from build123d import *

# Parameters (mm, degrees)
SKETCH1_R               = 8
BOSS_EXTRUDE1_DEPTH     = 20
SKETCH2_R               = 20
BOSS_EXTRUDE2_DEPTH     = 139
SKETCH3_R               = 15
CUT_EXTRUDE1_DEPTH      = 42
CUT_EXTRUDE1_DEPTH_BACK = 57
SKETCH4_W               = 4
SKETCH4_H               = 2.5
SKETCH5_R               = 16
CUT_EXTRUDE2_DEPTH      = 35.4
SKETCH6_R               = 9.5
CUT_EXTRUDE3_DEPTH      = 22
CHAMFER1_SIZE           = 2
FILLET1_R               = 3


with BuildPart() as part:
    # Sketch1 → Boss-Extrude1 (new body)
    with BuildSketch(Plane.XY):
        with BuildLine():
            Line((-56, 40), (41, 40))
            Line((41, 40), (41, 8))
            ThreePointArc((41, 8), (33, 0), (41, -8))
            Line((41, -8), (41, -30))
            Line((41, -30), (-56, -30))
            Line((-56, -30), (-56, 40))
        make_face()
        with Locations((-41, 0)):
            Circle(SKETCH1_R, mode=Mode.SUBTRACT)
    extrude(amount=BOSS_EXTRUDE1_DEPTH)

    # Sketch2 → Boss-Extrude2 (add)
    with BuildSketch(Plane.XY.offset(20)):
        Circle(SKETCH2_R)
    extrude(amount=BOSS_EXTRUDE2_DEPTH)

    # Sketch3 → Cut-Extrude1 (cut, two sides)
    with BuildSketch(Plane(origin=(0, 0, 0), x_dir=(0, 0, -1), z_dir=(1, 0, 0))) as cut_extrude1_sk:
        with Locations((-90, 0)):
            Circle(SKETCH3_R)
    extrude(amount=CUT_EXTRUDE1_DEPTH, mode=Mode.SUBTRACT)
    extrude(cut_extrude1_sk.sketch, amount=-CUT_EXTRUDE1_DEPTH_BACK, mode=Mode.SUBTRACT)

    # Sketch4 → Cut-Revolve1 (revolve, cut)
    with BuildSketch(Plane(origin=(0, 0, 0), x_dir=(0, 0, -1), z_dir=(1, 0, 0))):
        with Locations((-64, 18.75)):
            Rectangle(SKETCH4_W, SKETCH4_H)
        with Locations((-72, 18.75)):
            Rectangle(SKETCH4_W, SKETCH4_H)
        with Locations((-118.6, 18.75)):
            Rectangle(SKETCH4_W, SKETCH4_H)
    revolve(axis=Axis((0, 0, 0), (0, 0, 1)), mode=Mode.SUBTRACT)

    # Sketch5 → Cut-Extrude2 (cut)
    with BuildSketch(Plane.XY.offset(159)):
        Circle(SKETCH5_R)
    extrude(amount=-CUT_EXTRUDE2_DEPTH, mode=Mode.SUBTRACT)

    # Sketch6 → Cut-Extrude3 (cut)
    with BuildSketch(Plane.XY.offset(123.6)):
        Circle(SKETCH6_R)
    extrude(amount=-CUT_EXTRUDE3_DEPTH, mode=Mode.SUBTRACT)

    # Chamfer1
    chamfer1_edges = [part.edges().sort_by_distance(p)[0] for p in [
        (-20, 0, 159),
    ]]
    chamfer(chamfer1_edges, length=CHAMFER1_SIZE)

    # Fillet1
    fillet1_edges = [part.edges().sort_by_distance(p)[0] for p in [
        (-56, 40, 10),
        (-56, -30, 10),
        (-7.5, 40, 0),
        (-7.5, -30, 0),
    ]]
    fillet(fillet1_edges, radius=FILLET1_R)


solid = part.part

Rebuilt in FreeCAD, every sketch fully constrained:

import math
import FreeCAD as App
import Part
import Sketcher

V = App.Vector
Q = App.Units.Quantity


def edges_at(feature, points):
    """Names of the edges that pass closest to the given points."""
    edges = feature.Shape.Edges
    near = lambda p: min(range(len(edges)), key=lambda i: edges[i].distToShape(Part.Vertex(*p))[0])
    return sorted({f"Edge{near(p) + 1}" for p in points})


def add_polygon(sketch, points):
    """Adds a closed chain of lines whose ends are joined by coincident constraints."""
    first, n = sketch.GeometryCount, len(points)
    for a, b in zip(points, points[1:] + points[:1]):
        sketch.addGeometry(Part.LineSegment(App.Vector(*a, 0), App.Vector(*b, 0)), False)
    for i in range(n):
        sketch.addConstraint(Sketcher.Constraint("Coincident", first + i, 2, first + (i + 1) % n, 1))

doc = App.newDocument("Part")
body = doc.addObject("PartDesign::Body", "Body")

sketch1 = body.newObject("Sketcher::SketchObject", "Sketch")
sketch1.AttachmentSupport = (doc.getObject("XY_Plane"), [""])
sketch1.MapMode = "FlatFace"
sketch1.addGeometry([
    Part.LineSegment(V(41, 40, 0), V(-56, 40, 0)),
    Part.LineSegment(V(-56, 40, 0), V(-56, -30, 0)),
    Part.LineSegment(V(-56, -30, 0), V(41, -30, 0)),
    Part.LineSegment(V(41, -30, 0), V(41, -8, 0)),
    Part.ArcOfCircle(Part.Circle(V(41, 0, 0), V(0, 0, 1), 8), math.radians(90), math.radians(270)),
    Part.LineSegment(V(41, 8, 0), V(41, 40, 0)),
    Part.Circle(V(-41, 0, 0), V(0, 0, 1), 8),
], False)
sketch1.addConstraint([
    Sketcher.Constraint("Coincident", 0, 2, 1, 1),
    Sketcher.Constraint("Coincident", 1, 2, 2, 1),
    Sketcher.Constraint("Coincident", 2, 2, 3, 1),
    Sketcher.Constraint("Coincident", 3, 2, 4, 2),
    Sketcher.Constraint("Coincident", 4, 1, 5, 1),
    Sketcher.Constraint("Coincident", 5, 2, 0, 1),
    Sketcher.Constraint("Horizontal", 0),
    Sketcher.Constraint("Vertical", 1),
    Sketcher.Constraint("Horizontal", 2),
    Sketcher.Constraint("Vertical", 3),
    Sketcher.Constraint("Vertical", 5),
    Sketcher.Constraint("Equal", 4, 6),
    Sketcher.Constraint("Symmetric", 4, 3, 6, 3, -1, 1),
    Sketcher.Constraint("Symmetric", 3, 2, 4, 1, -1),
    Sketcher.Constraint("Vertical", 4, 3, 2, 2),
    Sketcher.Constraint("Diameter", 6, Q("16 mm")),
    Sketcher.Constraint("DistanceX", 0, 2, 0, 1, Q("97 mm")),
    Sketcher.Constraint("DistanceY", 1, 2, 1, 1, Q("70 mm")),
    Sketcher.Constraint("DistanceY", 3, 1, 3, 2, Q("22 mm")),
    Sketcher.Constraint("DistanceX", -1, 1, 4, 3, Q("41 mm")),
])
pad1 = body.newObject("PartDesign::Pad", "Pad")
pad1.Profile = sketch1
pad1.Length = 20

sketch2 = body.newObject("Sketcher::SketchObject", "Sketch001")
sketch2.AttachmentSupport = (doc.getObject("XY_Plane"), [""])
sketch2.MapMode = "FlatFace"
sketch2.AttachmentOffset = App.Placement(V(0, 0, 20), App.Rotation())
sketch2.addGeometry(Part.Circle(V(0, 0, 0), V(0, 0, 1), 20), False)
sketch2.addConstraint([
    Sketcher.Constraint("Coincident", 0, 3, -1, 1),
    Sketcher.Constraint("Diameter", 0, Q("40 mm")),
])
pad2 = body.newObject("PartDesign::Pad", "Pad001")
pad2.Profile = sketch2
pad2.Length = 139

sketch3 = body.newObject("Sketcher::SketchObject", "Sketch002")
sketch3.AttachmentSupport = (doc.getObject("YZ_Plane"), [""])
sketch3.MapMode = "FlatFace"
sketch3.addGeometry(Part.Circle(V(0, 90, 0), V(0, 0, 1), 15), False)
sketch3.addConstraint([
    Sketcher.Constraint("PointOnObject", 0, 3, -2),
    Sketcher.Constraint("Diameter", 0, Q("30 mm")),
    Sketcher.Constraint("DistanceY", -1, 1, 0, 3, Q("90 mm")),
])
pocket1 = body.newObject("PartDesign::Pocket", "Pocket")
pocket1.Profile = sketch3
pocket1.Type = "ThroughAll"
pocket1.Midplane = True

sketch4 = body.newObject("Sketcher::SketchObject", "Sketch003")
sketch4.AttachmentSupport = (doc.getObject("YZ_Plane"), [""])
sketch4.MapMode = "FlatFace"
add_polygon(sketch4, [(20, 66), (17.5, 66), (17.5, 62), (20, 62)])
add_polygon(sketch4, [(20, 74), (17.5, 74), (17.5, 70), (20, 70)])
add_polygon(sketch4, [(20, 120.6), (17.5, 120.6), (17.5, 116.6), (20, 116.6)])
sketch4.addConstraint([
    Sketcher.Constraint("Horizontal", 0),
    Sketcher.Constraint("Vertical", 1),
    Sketcher.Constraint("Horizontal", 2),
    Sketcher.Constraint("Vertical", 3),
    Sketcher.Constraint("Horizontal", 4),
    Sketcher.Constraint("Vertical", 5),
    Sketcher.Constraint("Horizontal", 6),
    Sketcher.Constraint("Vertical", 7),
    Sketcher.Constraint("Horizontal", 8),
    Sketcher.Constraint("Vertical", 9),
    Sketcher.Constraint("Horizontal", 10),
    Sketcher.Constraint("Vertical", 11),
    Sketcher.Constraint("Vertical", 1, 2, 4, 2),
    Sketcher.Constraint("Vertical", 3, 2, 6, 2),
    Sketcher.Constraint("Vertical", 5, 2, 8, 2),
    Sketcher.Constraint("Vertical", 7, 2, 10, 2),
    Sketcher.Constraint("Equal", 3, 5),
    Sketcher.Constraint("Equal", 7, 9),
    Sketcher.Constraint("DistanceY", 1, 2, 1, 1, Q("4 mm")),
    Sketcher.Constraint("DistanceX", 0, 2, 0, 1, Q("2.5 mm")),
    Sketcher.Constraint("DistanceY", -1, 1, 0, 2, Q("66 mm")),
    Sketcher.Constraint("DistanceX", -1, 1, 2, 2, Q("20 mm")),
    Sketcher.Constraint("DistanceY", -1, 1, 4, 2, Q("74 mm")),
    Sketcher.Constraint("DistanceY", -1, 1, 8, 2, Q("120.6 mm")),
])
groove = body.newObject("PartDesign::Groove", "Groove")
groove.Profile = sketch4
groove.ReferenceAxis = (sketch4, ["V_Axis"])
groove.Angle = 360

sketch5 = body.newObject("Sketcher::SketchObject", "Sketch004")
sketch5.AttachmentSupport = (doc.getObject("XY_Plane"), [""])
sketch5.MapMode = "FlatFace"
sketch5.AttachmentOffset = App.Placement(V(0, 0, 159), App.Rotation())
sketch5.addGeometry(Part.Circle(V(0, 0, 0), V(0, 0, 1), 16), False)
sketch5.addConstraint([
    Sketcher.Constraint("Coincident", 0, 3, -1, 1),
    Sketcher.Constraint("Diameter", 0, Q("32 mm")),
])
pocket2 = body.newObject("PartDesign::Pocket", "Pocket001")
pocket2.Profile = sketch5
pocket2.Length = 35.4

sketch6 = body.newObject("Sketcher::SketchObject", "Sketch005")
sketch6.AttachmentSupport = (doc.getObject("XY_Plane"), [""])
sketch6.MapMode = "FlatFace"
sketch6.AttachmentOffset = App.Placement(V(0, 0, 123.6), App.Rotation())
sketch6.addGeometry(Part.Circle(V(0, 0, 0), V(0, 0, 1), 9.5), False)
sketch6.addConstraint([
    Sketcher.Constraint("Coincident", 0, 3, -1, 1),
    Sketcher.Constraint("Diameter", 0, Q("19 mm")),
])
pocket3 = body.newObject("PartDesign::Pocket", "Pocket002")
pocket3.Profile = sketch6
pocket3.Length = 22
doc.recompute()

chamfer = body.newObject("PartDesign::Chamfer", "Chamfer")
chamfer.Base = (pocket3, edges_at(pocket3, [(-20, 0, 159)]))
chamfer.Size = 2
doc.recompute()

fillet = body.newObject("PartDesign::Fillet", "Fillet")
fillet.Base = (chamfer, edges_at(chamfer, [
    (-56, 40, 10),
    (-56, -30, 10),
    (-7.5, 40, 0),
    (-7.5, -30, 0),
]))
fillet.Radius = 3

doc.recompute()
